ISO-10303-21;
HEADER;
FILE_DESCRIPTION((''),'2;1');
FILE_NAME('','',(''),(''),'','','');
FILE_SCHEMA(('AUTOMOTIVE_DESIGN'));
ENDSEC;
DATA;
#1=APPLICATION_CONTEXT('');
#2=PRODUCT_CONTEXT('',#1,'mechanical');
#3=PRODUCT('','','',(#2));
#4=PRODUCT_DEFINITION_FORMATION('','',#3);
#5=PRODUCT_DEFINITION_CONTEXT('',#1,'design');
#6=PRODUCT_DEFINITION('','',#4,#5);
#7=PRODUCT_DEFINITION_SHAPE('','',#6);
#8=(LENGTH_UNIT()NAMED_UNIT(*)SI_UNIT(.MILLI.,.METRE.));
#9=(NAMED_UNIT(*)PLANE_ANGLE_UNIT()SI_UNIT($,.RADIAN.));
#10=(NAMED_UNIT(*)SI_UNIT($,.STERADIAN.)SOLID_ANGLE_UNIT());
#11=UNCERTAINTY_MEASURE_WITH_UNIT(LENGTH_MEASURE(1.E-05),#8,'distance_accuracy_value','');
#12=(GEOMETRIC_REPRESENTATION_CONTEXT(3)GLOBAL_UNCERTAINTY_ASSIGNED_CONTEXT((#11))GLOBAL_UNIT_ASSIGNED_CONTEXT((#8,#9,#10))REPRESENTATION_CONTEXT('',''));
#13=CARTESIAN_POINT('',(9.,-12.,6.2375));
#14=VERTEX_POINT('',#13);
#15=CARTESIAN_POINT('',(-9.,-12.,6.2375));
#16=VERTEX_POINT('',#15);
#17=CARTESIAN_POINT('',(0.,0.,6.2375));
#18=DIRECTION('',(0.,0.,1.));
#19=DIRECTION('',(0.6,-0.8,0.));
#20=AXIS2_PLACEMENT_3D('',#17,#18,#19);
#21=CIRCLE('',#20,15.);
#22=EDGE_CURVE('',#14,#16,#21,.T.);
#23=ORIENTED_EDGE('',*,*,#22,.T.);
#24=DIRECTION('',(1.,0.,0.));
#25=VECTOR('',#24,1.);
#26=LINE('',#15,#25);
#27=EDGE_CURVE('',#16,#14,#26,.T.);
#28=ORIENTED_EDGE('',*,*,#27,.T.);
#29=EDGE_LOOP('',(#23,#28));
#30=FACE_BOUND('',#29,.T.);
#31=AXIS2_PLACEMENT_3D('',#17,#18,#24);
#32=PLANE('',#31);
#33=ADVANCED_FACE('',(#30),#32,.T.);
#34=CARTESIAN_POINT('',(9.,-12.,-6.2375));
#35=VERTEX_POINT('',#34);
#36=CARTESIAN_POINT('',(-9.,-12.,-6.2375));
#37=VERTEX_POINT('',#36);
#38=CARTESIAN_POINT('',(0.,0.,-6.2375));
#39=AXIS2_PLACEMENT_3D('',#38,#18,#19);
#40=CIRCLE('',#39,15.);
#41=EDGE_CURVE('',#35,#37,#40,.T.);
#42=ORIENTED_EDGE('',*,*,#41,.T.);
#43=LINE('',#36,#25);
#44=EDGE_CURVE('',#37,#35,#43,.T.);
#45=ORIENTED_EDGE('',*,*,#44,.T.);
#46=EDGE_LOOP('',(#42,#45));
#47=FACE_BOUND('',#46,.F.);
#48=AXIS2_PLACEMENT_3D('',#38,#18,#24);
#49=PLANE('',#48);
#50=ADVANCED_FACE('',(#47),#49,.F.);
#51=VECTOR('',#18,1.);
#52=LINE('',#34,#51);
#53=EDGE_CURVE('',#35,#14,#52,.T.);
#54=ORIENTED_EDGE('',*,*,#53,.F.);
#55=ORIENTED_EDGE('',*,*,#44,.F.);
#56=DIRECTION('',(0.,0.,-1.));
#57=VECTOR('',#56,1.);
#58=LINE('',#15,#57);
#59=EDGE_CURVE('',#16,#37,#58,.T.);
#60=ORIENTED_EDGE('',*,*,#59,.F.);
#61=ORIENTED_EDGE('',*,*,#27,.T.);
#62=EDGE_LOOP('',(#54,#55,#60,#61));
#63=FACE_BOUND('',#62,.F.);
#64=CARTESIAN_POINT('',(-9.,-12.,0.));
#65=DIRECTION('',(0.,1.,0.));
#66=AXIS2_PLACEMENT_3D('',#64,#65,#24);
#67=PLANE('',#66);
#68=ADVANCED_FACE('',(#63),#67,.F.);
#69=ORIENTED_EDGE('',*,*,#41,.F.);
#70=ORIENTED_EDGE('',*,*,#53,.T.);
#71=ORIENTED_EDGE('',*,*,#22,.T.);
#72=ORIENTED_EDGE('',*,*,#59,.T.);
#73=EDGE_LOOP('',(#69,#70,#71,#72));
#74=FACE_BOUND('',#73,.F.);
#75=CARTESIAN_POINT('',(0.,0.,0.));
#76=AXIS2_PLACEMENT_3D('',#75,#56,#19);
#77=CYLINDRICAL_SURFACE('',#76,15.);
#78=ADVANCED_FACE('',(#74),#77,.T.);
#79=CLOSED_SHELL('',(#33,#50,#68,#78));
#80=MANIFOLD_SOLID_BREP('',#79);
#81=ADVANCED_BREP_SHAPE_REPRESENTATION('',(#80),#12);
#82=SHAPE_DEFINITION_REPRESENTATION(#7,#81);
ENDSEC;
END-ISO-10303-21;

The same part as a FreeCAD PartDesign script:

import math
import FreeCAD as App
import Part
import Sketcher

doc = App.newDocument("Part")
body = doc.addObject("PartDesign::Body", "Body")

# Sketch on XY plane
sketch1 = doc.addObject("Sketcher::SketchObject", "Sketch")
body.addObject(sketch1)
sketch1.AttachmentSupport = (doc.XY_Plane, [""])
sketch1.MapMode = "FlatFace"
sketch1.addGeometry([
    Part.LineSegment(App.Vector(-9, -12, 0), App.Vector(9, -12, 0)),
    Part.ArcOfCircle(Part.Circle(App.Vector(0, 0, 0), App.Vector(0, 0, 1), 15), math.radians(-53), math.radians(233)),
], False)
sketch1.addConstraint([
    Sketcher.Constraint("Coincident", 0, 1, 1, 2),
    Sketcher.Constraint("Coincident", 1, 1, 0, 2),
    Sketcher.Constraint("Horizontal", 0),
    Sketcher.Constraint("Coincident", 1, 3, -1, 1),
    Sketcher.Constraint("Radius", 1, 15.0),
    Sketcher.Constraint("DistanceY", 0, 1, -1, 1, 12.0),
])
pad1 = doc.addObject("PartDesign::Pad", "Pad")
body.addObject(pad1)
pad1.Profile = sketch1
pad1.Length = 12.475
pad1.Midplane = True

doc.recompute()
